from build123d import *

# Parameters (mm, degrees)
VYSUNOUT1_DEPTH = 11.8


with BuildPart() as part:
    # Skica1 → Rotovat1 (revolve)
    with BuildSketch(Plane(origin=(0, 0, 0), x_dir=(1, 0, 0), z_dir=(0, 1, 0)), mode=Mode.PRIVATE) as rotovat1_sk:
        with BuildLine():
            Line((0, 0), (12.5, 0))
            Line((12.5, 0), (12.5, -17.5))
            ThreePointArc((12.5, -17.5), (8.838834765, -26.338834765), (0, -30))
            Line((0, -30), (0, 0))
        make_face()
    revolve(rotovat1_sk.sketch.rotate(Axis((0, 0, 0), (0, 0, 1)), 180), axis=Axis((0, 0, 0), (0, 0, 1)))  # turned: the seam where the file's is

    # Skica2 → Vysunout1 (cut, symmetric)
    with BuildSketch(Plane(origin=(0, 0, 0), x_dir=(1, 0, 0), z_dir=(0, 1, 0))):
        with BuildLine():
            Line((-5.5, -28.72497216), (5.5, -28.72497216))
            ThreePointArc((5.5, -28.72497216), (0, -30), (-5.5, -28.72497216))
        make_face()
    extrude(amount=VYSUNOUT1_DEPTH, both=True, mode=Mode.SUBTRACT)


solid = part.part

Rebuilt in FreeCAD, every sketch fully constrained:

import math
import FreeCAD as App
import Part
import Sketcher
from FreeCAD import Vector
Q = App.Units.Quantity

doc = App.newDocument("Part")
body = doc.addObject("PartDesign::Body", "Body")

# Sketch on XZ plane
sketch1 = body.newObject("Sketcher::SketchObject", "Sketch")
sketch1.AttachmentSupport = (doc.getObject("XZ_Plane"), [""])
sketch1.MapMode = "FlatFace"
sketch1.addGeometry([
    Part.LineSegment(Vector(12, 0, 0), Vector(0, 0, 0)),
    Part.LineSegment(Vector(0, 0, 0), Vector(0, 30, 0)),
    Part.ArcOfCircle(Part.Circle(Vector(0, 18, 0), Vector(0, 0, 1), 12), math.radians(0), math.radians(90)),
    Part.LineSegment(Vector(12, 18, 0), Vector(12, 0, 0)),
], False)
sketch1.addConstraint([
    Sketcher.Constraint("Coincident", 0, 2, 1, 1),
    Sketcher.Constraint("Coincident", 1, 2, 2, 2),
    Sketcher.Constraint("Tangent", 2, 1, 3, 1),
    Sketcher.Constraint("Coincident", 3, 2, 0, 1),
    Sketcher.Constraint("Horizontal", 0),
    Sketcher.Constraint("Vertical", 1),
    Sketcher.Constraint("Vertical", 3),
    Sketcher.Constraint("Coincident", 0, 2, -1, 1),
    Sketcher.Constraint("PointOnObject", 2, 3, -2),
    Sketcher.Constraint("Radius", 2, Q("12.5 mm")),
    Sketcher.Constraint("DistanceY", 1, 1, 1, 2, Q("30 mm")),
])
revolution = body.newObject("PartDesign::Revolution", "Revolution")
revolution.Profile = sketch1
revolution.ReferenceAxis = (sketch1, ["V_Axis"])
revolution.Angle = 360

# Sketch on XZ plane
sketch2 = body.newObject("Sketcher::SketchObject", "Sketch001")
sketch2.AttachmentSupport = (doc.getObject("XZ_Plane"), [""])
sketch2.MapMode = "FlatFace"
sketch2.addGeometry([
    Part.LineSegment(Vector(6, 29, 0), Vector(-6, 29, 0)),
    Part.ArcOfCircle(Part.Circle(Vector(0, 18, 0), Vector(0, 0, 1), 12), math.radians(64), math.radians(116)),
], False)
sketch2.addConstraint([
    Sketcher.Constraint("Coincident", 0, 1, 1, 1),
    Sketcher.Constraint("Coincident", 1, 2, 0, 2),
    Sketcher.Constraint("Horizontal", 0),
    Sketcher.Constraint("PointOnObject", 1, 3, -2),
    Sketcher.Constraint("Radius", 1, Q("12.5 mm")),
    Sketcher.Constraint("DistanceX", 0, 2, 0, 1, Q("11 mm")),
    Sketcher.Constraint("DistanceY", -1, 1, 1, 3, Q("17.5 mm")),
])
pocket1 = body.newObject("PartDesign::Pocket", "Pocket")
pocket1.Profile = sketch2
pocket1.Length = 23.6
pocket1.Midplane = True

doc.recompute()
